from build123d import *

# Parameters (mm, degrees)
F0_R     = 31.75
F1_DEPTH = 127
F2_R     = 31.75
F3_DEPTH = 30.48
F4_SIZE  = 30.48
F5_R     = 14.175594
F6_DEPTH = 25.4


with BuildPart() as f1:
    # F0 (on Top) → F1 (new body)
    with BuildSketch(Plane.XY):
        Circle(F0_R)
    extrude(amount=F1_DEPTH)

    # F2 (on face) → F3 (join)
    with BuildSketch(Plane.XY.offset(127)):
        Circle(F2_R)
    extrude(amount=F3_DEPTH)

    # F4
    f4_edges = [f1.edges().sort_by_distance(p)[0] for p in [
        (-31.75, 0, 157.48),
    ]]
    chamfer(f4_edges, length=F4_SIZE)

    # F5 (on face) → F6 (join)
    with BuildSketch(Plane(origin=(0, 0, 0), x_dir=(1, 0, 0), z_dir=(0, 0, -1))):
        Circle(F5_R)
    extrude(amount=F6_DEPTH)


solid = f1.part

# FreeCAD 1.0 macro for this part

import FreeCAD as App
import Part
import Sketcher

V = App.Vector
Q = App.Units.Quantity


def edges_at(feature, points):
    """Names of the edges that pass closest to the given points."""
    edges = feature.Shape.Edges
    near = lambda p: min(range(len(edges)), key=lambda i: edges[i].distToShape(Part.Vertex(*p))[0])
    return sorted({f"Edge{near(p) + 1}" for p in points})

doc = App.newDocument("Part")
body = doc.addObject("PartDesign::Body", "Body")

sketch1 = body.newObject("Sketcher::SketchObject", "Sketch")
sketch1.AttachmentSupport = (doc.getObject("XY_Plane"), [""])
sketch1.MapMode = "FlatFace"
sketch1.addGeometry(Part.Circle(V(0, 0, 0), V(0, 0, 1), 32), False)
sketch1.addConstraint([
    Sketcher.Constraint("Coincident", 0, 3, -1, 1),
    Sketcher.Constraint("Diameter", 0, Q("2.5 in")),
])
pad1 = body.newObject("PartDesign::Pad", "Pad")
pad1.Profile = sketch1
pad1.Length = Q("5 in")

sketch2 = body.newObject("Sketcher::SketchObject", "Sketch001")
sketch2.AttachmentSupport = (doc.getObject("XY_Plane"), [""])
sketch2.MapMode = "FlatFace"
sketch2.AttachmentOffset = App.Placement(V(0, 0, 5 * 25.4), App.Rotation())
sketch2.addGeometry(Part.Circle(V(0, 0, 0), V(0, 0, 1), 32), False)
sketch2.addConstraint([
    Sketcher.Constraint("Coincident", 0, 3, -1, 1),
    Sketcher.Constraint("Diameter", 0, Q("2.5 in")),
])
pad2 = body.newObject("PartDesign::Pad", "Pad001")
pad2.Profile = sketch2
pad2.Length = Q("1.2 in")
doc.recompute()

chamfer = body.newObject("PartDesign::Chamfer", "Chamfer")
chamfer.Base = (pad2, edges_at(pad2, [(-31.75, 0, 157.48)]))
chamfer.Size = Q("1.2 in")

sketch3 = body.newObject("Sketcher::SketchObject", "Sketch002")
sketch3.AttachmentSupport = (doc.getObject("XY_Plane"), [""])
sketch3.MapMode = "FlatFace"
sketch3.addGeometry(Part.Circle(V(0, 0, 0), V(0, 0, 1), 14), False)
sketch3.addConstraint([
    Sketcher.Constraint("Coincident", 0, 3, -1, 1),
    Sketcher.Constraint("Diameter", 0, 28.351188),
])
pad3 = body.newObject("PartDesign::Pad", "Pad002")
pad3.Profile = sketch3
pad3.Length = Q("1 in")
pad3.Reversed = True

doc.recompute()
